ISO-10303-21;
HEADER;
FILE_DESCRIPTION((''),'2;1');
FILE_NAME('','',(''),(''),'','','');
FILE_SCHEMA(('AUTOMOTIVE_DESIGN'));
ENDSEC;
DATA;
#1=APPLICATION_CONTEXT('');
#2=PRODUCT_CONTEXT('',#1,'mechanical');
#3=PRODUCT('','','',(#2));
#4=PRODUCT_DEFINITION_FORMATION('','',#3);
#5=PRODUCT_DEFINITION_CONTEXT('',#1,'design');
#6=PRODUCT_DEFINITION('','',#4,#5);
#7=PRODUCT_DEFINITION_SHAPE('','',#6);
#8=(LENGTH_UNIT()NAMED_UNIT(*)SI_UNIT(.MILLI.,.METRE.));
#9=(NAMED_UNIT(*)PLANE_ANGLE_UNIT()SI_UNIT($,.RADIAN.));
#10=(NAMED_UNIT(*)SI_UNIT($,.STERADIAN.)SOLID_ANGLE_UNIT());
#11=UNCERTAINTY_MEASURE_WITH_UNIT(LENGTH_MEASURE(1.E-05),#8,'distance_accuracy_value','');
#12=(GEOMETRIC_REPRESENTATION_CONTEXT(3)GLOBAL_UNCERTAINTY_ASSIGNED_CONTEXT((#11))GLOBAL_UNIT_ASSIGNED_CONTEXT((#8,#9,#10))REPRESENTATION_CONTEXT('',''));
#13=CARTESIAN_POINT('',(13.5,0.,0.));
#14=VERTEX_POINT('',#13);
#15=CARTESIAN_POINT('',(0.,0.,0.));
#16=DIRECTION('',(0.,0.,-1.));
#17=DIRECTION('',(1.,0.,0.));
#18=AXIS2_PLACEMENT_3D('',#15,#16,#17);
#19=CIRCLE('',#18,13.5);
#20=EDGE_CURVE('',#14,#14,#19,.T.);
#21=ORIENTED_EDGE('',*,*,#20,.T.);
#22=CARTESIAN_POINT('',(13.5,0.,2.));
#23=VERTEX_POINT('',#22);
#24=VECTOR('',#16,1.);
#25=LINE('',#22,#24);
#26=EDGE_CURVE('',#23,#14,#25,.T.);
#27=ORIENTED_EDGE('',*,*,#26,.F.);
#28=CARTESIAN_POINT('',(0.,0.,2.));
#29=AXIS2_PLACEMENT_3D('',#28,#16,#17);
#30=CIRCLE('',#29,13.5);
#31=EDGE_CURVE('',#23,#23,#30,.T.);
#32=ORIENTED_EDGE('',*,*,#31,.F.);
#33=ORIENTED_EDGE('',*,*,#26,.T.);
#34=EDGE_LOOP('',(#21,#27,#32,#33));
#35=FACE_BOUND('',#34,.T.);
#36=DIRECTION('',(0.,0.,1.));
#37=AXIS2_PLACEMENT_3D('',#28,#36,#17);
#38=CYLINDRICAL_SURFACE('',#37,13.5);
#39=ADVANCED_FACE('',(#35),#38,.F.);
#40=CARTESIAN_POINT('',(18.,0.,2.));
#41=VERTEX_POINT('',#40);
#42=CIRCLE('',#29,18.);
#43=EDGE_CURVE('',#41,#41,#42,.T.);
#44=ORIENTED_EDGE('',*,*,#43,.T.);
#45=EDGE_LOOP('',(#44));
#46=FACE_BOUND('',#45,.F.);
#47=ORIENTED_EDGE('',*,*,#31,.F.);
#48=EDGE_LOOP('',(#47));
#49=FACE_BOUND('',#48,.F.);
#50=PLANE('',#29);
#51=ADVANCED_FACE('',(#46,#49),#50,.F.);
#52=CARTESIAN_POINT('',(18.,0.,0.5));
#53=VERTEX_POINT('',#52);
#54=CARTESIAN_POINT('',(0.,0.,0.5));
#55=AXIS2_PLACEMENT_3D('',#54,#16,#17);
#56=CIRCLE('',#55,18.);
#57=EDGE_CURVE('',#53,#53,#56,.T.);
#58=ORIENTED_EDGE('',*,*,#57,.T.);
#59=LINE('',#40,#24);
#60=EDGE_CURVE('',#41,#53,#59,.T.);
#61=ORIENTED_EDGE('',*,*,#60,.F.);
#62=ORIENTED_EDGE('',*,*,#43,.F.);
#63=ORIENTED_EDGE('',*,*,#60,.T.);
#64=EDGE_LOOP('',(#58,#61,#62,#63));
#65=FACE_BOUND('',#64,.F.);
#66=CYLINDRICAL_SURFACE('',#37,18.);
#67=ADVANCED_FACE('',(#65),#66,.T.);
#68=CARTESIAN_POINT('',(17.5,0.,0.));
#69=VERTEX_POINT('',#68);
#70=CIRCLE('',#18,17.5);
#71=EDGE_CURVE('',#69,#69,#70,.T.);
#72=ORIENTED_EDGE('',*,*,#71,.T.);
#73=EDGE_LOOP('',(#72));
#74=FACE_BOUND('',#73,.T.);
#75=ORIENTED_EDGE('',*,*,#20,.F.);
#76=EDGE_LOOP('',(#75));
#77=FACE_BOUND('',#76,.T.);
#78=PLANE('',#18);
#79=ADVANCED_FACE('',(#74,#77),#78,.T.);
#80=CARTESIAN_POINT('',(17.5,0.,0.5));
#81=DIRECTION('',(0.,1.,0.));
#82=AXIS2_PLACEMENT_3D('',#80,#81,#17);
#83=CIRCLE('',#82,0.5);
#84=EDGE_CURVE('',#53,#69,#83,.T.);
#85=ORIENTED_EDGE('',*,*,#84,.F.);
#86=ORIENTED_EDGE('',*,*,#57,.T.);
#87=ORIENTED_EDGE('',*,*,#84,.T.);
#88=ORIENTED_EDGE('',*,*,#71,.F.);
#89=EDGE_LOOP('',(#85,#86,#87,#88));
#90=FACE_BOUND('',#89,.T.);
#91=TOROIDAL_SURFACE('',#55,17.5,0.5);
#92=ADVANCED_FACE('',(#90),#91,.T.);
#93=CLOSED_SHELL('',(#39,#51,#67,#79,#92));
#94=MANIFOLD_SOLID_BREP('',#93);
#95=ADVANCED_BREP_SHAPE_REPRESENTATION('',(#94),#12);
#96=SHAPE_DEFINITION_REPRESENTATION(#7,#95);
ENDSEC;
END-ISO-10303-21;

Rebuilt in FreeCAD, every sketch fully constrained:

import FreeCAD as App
import Part
import Sketcher

V = App.Vector


def edges_at(feature, points):
    """Names of the edges that pass closest to the given points."""
    edges = feature.Shape.Edges
    near = lambda p: min(range(len(edges)), key=lambda i: edges[i].distToShape(Part.Vertex(*p))[0])
    return sorted({f"Edge{near(p) + 1}" for p in points})

doc = App.newDocument("Part")
body = doc.addObject("PartDesign::Body", "Body")

# Sketch on XY plane
sketch1 = doc.addObject("Sketcher::SketchObject", "Sketch")
body.addObject(sketch1)
sketch1.AttachmentSupport = (doc.XY_Plane, [""])
sketch1.MapMode = "FlatFace"
sketch1.addGeometry(Part.Circle(V(0, 0, 0), V(0, 0, 1), 13.5), False)
sketch1.addConstraint([
    Sketcher.Constraint("Coincident", 0, 3, -1, 1),
    Sketcher.Constraint("Diameter", 0, 27.0),
])
pad1 = doc.addObject("PartDesign::Pad", "Pad")
body.addObject(pad1)
pad1.Profile = sketch1
pad1.Length = 2
body2 = doc.addObject("PartDesign::Body", "Body001")

# Sketch on XY plane
sketch2 = doc.addObject("Sketcher::SketchObject", "Sketch001")
body2.addObject(sketch2)
sketch2.AttachmentSupport = (doc.getObject("XY_Plane001"), [""])
sketch2.MapMode = "FlatFace"
sketch2.addGeometry(Part.Circle(V(0, 0, 0), V(0, 0, 1), 18), False)
sketch2.addConstraint([
    Sketcher.Constraint("Coincident", 0, 3, -1, 1),
    Sketcher.Constraint("Diameter", 0, 36.0),
])
pad2 = doc.addObject("PartDesign::Pad", "Pad001")
body2.addObject(pad2)
pad2.Profile = sketch2
pad2.Length = 2
doc.recompute()

boolean = doc.addObject("PartDesign::Boolean", "Boolean")
body2.addObject(boolean)
boolean.Type = "Cut"
boolean.addObjects([body])
body3 = doc.addObject("PartDesign::Body", "Body002")
doc.recompute()

body2.Placement = App.Placement(V(0, 0, 2), App.Rotation(V(1, 0, 0), 180))
boolean2 = doc.addObject("PartDesign::Boolean", "Boolean001")
body3.addObject(boolean2)
boolean2.Type = "Fuse"
boolean2.addObjects([body2])
doc.recompute()

fillet = doc.addObject("PartDesign::Fillet", "Fillet")
body3.addObject(fillet)
fillet.Base = (boolean2, edges_at(boolean2, [(-18, 0, 0)]))
fillet.Radius = 0.5

doc.recompute()
